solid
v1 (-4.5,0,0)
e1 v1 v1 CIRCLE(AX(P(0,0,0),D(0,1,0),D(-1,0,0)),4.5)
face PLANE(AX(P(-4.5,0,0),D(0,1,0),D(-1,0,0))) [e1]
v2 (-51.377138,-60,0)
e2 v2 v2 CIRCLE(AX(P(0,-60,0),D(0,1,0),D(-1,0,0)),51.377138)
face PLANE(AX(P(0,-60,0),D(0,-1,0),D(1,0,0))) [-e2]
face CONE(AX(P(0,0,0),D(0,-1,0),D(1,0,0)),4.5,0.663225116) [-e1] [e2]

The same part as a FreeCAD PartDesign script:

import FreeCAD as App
import Part
import Sketcher

V = App.Vector
Q = App.Units.Quantity


def add_polygon(sketch, points):
    """Adds a closed chain of lines whose ends are joined by coincident constraints."""
    first, n = sketch.GeometryCount, len(points)
    for a, b in zip(points, points[1:] + points[:1]):
        sketch.addGeometry(Part.LineSegment(App.Vector(*a, 0), App.Vector(*b, 0)), False)
    for i in range(n):
        sketch.addConstraint(Sketcher.Constraint("Coincident", first + i, 2, first + (i + 1) % n, 1))

doc = App.newDocument("Part")
body = doc.addObject("PartDesign::Body", "Body")

sketch1 = doc.addObject("Sketcher::SketchObject", "Sketch")
body.addObject(sketch1)
sketch1.AttachmentSupport = (doc.XY_Plane, [""])
sketch1.MapMode = "FlatFace"
add_polygon(sketch1, [(0, -60), (0, 0), (-4.5, 0), (-51.377138, -60)])
sketch1.addConstraint([
    Sketcher.Constraint("Vertical", 0),
    Sketcher.Constraint("Horizontal", 1),
    Sketcher.Constraint("Horizontal", 3),
    Sketcher.Constraint("Coincident", 0, 2, -1, 1),
    Sketcher.Constraint("DistanceY", 0, 1, 0, 2, Q("60 mm")),
    Sketcher.Constraint("Angle", 2, Q("-128 deg")),
    Sketcher.Constraint("DistanceX", 1, 2, 1, 1, Q("4.5 mm")),
])
revolution = doc.addObject("PartDesign::Revolution", "Revolution")
body.addObject(revolution)
revolution.Profile = sketch1
revolution.ReferenceAxis = (sketch1, ["V_Axis"])
revolution.Angle = 360

doc.recompute()
